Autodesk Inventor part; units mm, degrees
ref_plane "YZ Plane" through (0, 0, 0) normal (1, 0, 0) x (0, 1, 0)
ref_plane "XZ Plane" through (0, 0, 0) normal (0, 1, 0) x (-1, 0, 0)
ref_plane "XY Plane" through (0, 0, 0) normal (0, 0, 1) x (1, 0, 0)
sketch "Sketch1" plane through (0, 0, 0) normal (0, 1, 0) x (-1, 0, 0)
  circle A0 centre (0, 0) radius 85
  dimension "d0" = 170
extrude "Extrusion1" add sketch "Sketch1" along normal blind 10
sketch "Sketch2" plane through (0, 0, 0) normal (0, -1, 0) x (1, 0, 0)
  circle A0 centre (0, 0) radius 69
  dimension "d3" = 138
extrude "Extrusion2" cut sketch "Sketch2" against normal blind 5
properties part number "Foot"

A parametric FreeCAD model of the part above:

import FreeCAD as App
import Part
import Sketcher
from FreeCAD import Vector
Q = App.Units.Quantity

doc = App.newDocument("Part")
body = doc.addObject("PartDesign::Body", "Body")

# Sketch on XZ plane
sketch1 = body.newObject("Sketcher::SketchObject", "Sketch")
sketch1.AttachmentSupport = (doc.getObject("XZ_Plane"), [""])
sketch1.MapMode = "FlatFace"
sketch1.addGeometry(Part.Circle(Vector(0, 0, 0), Vector(0, 0, 1), 85), False)
sketch1.addConstraint([
    Sketcher.Constraint("Coincident", 0, 3, -1, 1),
    Sketcher.Constraint("Diameter", 0, Q("170 mm")),
])
pad1 = body.newObject("PartDesign::Pad", "Pad")
pad1.Profile = sketch1
pad1.Length = 10
pad1.Reversed = True

# Sketch on XZ plane
sketch2 = body.newObject("Sketcher::SketchObject", "Sketch001")
sketch2.AttachmentSupport = (doc.getObject("XZ_Plane"), [""])
sketch2.MapMode = "FlatFace"
sketch2.addGeometry(Part.Circle(Vector(0, 0, 0), Vector(0, 0, 1), 69), False)
sketch2.addConstraint([
    Sketcher.Constraint("Coincident", 0, 3, -1, 1),
    Sketcher.Constraint("Diameter", 0, Q("138 mm")),
])
pocket1 = body.newObject("PartDesign::Pocket", "Pocket")
pocket1.Profile = sketch2
pocket1.Length = 5

doc.recompute()
